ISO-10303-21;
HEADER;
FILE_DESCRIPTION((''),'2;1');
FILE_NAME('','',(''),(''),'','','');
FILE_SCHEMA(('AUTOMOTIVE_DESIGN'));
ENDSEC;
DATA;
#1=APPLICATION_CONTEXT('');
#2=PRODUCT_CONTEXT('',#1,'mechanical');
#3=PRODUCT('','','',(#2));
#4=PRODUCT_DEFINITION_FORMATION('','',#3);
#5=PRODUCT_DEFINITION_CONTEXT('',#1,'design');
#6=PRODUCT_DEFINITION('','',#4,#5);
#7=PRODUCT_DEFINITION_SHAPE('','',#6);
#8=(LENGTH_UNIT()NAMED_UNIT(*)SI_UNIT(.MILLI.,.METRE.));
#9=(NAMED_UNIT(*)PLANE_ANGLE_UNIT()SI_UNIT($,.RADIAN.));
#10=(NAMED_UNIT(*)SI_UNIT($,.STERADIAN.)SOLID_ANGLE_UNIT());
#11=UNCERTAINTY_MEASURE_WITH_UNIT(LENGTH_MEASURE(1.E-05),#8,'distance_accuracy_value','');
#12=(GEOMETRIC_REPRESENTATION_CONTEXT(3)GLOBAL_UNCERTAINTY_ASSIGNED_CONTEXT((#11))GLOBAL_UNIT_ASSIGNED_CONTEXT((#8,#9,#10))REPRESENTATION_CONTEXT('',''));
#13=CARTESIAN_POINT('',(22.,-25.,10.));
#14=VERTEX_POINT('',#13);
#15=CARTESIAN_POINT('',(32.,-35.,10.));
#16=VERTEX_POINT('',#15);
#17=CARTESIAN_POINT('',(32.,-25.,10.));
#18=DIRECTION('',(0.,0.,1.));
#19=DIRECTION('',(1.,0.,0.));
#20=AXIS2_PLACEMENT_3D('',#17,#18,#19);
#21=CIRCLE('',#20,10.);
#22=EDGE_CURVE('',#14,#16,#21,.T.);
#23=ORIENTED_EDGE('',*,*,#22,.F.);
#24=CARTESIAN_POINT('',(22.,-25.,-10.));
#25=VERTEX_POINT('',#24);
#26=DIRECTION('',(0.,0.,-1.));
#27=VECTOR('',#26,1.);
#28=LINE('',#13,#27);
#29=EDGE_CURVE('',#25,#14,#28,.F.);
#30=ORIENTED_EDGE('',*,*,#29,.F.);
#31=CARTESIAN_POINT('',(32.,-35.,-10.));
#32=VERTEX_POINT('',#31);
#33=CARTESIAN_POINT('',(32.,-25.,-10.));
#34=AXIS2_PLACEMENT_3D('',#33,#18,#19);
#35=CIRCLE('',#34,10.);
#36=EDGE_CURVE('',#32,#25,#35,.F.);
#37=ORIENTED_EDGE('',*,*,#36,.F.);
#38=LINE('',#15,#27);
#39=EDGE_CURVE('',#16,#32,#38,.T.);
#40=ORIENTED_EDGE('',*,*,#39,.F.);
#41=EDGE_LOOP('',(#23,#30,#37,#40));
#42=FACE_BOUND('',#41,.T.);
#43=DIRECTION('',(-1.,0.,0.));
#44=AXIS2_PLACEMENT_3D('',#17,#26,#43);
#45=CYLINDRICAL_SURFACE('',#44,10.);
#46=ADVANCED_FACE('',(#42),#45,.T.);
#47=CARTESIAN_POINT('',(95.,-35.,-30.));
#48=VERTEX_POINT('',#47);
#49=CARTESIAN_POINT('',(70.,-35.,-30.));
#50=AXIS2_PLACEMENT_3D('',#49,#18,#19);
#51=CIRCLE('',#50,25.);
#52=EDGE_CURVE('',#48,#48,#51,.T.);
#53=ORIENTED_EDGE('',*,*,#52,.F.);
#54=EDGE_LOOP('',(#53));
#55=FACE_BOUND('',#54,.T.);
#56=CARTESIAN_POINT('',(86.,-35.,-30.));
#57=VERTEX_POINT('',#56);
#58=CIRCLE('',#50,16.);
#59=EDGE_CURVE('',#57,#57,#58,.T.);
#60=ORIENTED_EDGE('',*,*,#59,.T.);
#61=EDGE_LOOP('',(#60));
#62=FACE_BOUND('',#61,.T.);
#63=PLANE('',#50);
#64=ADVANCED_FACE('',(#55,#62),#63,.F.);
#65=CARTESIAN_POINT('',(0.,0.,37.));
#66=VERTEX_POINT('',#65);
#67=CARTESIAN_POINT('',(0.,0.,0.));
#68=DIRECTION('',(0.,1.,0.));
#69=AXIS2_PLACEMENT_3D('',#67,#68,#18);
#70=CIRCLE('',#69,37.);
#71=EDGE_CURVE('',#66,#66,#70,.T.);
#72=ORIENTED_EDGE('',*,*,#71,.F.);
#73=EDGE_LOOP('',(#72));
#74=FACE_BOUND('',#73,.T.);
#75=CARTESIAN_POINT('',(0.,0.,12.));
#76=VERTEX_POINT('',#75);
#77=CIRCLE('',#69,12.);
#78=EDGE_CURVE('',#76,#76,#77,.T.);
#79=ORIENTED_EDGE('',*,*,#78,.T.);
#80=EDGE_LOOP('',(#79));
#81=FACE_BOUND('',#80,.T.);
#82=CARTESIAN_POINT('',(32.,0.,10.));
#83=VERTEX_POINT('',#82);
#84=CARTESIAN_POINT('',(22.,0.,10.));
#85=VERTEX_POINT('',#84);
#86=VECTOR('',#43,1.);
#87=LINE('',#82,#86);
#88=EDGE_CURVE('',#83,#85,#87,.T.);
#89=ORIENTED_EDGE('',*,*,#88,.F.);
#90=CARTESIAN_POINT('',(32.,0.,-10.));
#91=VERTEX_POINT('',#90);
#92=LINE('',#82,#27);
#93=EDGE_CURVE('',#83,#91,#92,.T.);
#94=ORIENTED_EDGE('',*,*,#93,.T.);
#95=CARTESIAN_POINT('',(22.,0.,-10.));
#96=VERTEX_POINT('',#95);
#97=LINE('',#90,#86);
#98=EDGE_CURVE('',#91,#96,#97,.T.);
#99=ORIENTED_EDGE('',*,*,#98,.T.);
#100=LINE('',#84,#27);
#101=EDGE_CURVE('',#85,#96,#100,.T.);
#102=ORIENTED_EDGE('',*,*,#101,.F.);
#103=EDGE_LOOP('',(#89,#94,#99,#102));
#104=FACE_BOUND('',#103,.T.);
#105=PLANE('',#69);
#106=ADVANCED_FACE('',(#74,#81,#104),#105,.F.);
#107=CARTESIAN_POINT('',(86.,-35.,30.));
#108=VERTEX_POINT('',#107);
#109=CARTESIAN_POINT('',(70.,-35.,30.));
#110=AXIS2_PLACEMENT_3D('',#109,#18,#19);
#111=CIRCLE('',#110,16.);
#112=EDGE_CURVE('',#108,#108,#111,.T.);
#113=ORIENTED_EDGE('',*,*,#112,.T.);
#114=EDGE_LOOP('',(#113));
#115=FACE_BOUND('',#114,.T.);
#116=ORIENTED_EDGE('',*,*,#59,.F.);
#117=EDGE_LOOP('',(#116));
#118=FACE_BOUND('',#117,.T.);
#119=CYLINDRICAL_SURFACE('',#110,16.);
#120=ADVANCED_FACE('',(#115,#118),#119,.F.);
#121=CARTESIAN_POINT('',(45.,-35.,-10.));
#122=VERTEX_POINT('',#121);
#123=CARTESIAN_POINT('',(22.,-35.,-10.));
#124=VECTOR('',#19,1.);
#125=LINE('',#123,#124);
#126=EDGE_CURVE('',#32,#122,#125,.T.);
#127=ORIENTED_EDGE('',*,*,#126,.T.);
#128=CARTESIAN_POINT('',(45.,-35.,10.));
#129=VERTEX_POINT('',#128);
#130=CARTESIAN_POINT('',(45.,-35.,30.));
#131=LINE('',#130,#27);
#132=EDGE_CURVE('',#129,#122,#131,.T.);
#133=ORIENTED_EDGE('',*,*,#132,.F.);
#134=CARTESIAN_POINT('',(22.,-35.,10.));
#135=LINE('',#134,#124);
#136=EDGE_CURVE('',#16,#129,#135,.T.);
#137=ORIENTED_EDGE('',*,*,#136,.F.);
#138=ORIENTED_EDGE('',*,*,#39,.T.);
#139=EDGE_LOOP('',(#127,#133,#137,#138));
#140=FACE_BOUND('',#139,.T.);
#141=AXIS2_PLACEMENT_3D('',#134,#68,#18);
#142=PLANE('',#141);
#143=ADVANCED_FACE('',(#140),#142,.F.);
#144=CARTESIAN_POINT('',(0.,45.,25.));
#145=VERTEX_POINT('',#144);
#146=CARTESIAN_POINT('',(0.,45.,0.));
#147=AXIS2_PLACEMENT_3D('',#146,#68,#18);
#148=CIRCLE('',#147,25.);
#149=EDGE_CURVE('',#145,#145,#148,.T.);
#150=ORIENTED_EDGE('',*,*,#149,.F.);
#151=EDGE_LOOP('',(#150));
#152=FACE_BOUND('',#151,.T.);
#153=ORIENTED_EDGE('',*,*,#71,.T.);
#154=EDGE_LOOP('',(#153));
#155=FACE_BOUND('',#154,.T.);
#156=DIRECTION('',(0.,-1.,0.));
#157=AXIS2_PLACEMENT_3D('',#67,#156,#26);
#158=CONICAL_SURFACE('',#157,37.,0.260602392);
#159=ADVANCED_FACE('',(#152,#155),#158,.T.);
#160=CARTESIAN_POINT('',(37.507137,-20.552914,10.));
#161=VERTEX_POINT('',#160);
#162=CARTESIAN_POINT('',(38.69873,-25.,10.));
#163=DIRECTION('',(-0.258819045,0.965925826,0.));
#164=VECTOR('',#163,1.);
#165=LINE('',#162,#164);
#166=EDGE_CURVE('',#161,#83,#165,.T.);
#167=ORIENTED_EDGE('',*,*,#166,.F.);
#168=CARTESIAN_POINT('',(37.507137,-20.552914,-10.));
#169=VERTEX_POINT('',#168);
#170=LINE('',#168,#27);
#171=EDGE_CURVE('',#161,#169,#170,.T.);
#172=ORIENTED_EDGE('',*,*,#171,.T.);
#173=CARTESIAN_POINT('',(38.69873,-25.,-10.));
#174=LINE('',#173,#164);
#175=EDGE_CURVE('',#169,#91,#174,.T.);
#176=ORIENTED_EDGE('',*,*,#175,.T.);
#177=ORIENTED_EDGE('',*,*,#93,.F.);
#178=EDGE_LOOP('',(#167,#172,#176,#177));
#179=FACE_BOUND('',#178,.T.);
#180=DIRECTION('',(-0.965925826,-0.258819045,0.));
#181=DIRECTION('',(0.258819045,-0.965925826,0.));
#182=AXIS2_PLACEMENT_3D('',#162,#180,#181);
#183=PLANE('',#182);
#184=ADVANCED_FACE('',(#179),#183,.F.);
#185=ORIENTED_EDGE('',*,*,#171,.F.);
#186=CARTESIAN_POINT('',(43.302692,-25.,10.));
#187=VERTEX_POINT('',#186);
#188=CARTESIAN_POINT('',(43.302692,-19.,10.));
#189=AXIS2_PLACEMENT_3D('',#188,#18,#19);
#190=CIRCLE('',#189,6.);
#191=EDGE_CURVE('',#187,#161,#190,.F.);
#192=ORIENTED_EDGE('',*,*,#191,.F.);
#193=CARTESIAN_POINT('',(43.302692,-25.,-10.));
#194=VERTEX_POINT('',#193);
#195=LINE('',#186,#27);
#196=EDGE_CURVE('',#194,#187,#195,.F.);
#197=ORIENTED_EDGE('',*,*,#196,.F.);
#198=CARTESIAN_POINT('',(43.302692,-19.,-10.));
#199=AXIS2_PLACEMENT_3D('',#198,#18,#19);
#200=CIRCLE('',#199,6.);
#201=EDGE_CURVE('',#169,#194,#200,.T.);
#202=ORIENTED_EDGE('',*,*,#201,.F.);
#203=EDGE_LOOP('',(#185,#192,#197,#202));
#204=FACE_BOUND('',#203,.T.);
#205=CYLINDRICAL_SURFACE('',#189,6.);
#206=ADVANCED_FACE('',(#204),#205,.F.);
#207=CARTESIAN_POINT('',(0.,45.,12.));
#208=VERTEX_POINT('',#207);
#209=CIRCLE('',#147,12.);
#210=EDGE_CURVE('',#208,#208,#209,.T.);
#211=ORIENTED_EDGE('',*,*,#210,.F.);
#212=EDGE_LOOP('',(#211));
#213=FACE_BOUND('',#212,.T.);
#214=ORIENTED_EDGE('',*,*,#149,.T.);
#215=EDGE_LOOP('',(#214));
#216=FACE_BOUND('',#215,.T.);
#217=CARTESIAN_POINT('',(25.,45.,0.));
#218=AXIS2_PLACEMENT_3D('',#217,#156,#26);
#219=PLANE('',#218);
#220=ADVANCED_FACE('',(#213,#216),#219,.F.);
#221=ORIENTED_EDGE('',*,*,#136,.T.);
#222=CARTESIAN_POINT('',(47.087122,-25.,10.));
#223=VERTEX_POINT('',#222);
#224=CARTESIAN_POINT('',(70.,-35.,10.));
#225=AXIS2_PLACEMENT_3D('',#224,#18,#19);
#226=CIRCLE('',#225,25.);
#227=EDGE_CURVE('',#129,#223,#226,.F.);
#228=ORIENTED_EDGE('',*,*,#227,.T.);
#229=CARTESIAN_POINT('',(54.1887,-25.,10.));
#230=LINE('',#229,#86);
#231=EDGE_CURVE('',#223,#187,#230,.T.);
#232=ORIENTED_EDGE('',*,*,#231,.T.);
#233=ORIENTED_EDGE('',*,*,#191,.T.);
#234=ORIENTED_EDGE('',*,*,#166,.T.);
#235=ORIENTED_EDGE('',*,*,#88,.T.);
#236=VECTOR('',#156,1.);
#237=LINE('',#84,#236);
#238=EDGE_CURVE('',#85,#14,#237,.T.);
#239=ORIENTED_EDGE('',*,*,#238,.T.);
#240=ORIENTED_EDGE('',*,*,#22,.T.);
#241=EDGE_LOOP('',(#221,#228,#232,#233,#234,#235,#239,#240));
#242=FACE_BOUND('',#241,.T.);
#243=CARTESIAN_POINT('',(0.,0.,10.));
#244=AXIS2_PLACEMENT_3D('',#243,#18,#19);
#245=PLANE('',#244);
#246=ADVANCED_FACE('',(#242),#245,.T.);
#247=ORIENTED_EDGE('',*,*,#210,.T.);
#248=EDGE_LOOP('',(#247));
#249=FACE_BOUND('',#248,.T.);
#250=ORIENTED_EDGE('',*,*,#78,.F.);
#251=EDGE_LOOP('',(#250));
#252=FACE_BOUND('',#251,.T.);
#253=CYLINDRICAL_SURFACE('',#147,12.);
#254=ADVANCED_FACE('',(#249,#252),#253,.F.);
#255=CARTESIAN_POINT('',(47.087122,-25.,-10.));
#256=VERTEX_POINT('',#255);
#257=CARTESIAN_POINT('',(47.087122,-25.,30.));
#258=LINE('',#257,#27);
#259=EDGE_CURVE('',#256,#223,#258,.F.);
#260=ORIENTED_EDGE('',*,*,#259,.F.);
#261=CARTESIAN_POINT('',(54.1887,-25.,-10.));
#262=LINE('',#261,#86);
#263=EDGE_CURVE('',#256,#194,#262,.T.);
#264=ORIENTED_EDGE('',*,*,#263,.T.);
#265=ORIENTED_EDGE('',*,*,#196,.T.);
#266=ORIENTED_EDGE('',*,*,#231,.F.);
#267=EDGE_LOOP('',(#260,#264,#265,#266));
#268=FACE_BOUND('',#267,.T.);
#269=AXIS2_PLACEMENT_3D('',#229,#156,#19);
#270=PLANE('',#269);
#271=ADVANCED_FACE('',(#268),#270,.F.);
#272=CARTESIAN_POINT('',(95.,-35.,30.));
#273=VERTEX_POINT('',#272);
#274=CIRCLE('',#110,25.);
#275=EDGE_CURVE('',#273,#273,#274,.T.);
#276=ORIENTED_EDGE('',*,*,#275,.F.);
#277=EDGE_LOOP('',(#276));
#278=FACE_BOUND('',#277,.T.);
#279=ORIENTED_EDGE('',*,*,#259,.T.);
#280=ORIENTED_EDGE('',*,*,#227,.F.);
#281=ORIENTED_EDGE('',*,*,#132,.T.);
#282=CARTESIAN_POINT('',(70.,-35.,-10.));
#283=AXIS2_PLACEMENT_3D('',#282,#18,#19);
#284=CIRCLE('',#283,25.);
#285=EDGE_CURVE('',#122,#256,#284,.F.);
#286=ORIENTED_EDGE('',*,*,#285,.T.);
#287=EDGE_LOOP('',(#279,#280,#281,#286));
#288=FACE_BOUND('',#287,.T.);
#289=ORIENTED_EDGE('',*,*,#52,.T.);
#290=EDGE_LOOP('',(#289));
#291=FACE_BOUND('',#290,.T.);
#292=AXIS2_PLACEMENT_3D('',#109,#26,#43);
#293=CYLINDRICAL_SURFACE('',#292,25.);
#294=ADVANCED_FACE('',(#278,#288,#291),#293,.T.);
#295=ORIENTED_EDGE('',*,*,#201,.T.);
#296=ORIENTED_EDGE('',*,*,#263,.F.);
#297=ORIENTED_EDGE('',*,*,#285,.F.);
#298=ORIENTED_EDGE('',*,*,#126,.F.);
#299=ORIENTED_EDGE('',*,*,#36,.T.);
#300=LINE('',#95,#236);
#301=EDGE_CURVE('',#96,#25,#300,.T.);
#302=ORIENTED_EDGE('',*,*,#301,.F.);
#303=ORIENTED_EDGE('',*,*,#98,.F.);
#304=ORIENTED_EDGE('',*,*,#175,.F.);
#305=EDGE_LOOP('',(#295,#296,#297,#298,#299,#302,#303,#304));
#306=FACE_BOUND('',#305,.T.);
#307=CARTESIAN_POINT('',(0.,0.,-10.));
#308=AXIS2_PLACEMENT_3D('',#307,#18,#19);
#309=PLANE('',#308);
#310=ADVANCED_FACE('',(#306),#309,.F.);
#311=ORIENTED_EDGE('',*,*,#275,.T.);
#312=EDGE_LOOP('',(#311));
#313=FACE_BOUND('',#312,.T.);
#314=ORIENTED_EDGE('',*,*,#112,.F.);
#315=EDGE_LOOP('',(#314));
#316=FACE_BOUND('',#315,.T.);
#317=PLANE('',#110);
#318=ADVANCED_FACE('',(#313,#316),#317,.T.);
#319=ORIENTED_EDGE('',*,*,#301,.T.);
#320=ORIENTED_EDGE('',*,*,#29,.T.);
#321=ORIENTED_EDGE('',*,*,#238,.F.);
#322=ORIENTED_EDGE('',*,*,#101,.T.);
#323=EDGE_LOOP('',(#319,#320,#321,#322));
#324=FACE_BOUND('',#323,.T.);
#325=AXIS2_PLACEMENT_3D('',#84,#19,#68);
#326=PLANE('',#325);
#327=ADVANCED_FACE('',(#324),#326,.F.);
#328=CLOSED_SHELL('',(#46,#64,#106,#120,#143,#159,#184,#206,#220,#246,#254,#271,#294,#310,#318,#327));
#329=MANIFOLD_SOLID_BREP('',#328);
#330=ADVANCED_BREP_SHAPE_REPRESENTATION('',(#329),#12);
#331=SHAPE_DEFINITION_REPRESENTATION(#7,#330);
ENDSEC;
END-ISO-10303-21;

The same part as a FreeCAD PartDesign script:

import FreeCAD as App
import Part
import Sketcher
from FreeCAD import Vector
Q = App.Units.Quantity


def edges_at(feature, points):
    """Names of the edges that pass closest to the given points."""
    edges = feature.Shape.Edges
    near = lambda p: min(range(len(edges)), key=lambda i: edges[i].distToShape(Part.Vertex(*p))[0])
    return sorted({f"Edge{near(p) + 1}" for p in points})

doc = App.newDocument("Part")
params = doc.addObject("Spreadsheet::Sheet", "Params")
for row, (alias, value) in enumerate([
    ("sketch1_width", "37 mm"),
    ("sketch1_width2", "25 mm"),
    ("sketch1_height", "45 mm"),
    ("revolution_angle", "360 deg"),
    ("sketch2_diameter", "50 mm"),
    ("pad1_length", "60 mm"),
    ("sketch3_width", "10 mm"),
    ("sketch3_height", "35 mm"),
    ("pad2_length", "20 mm"),
    ("fillet_radius", "10 mm"),
    ("fillet2_radius", "6 mm"),
    ("sketch4_diameter", "24 mm"),
    ("hole_diameter", "24 mm"),
    ("sketch5_diameter", "32 mm"),
    ("hole2_diameter", "32 mm"),
], start=1):
    params.set(f"A{row}", alias)
    params.set(f"B{row}", "=" + value)
    params.setAlias(f"B{row}", alias)

body = doc.addObject("PartDesign::Body", "Body")

# Sketch on XY plane
sketch1 = body.newObject("Sketcher::SketchObject", "Sketch")
sketch1.AttachmentSupport = (doc.getObject("XY_Plane"), [""])
sketch1.MapMode = "FlatFace"
sketch1.addGeometry([
    Part.LineSegment(Vector(0, 0, 0), Vector(37, 0, 0)),
    Part.LineSegment(Vector(37, 0, 0), Vector(25, 45, 0)),
    Part.LineSegment(Vector(25, 45, 0), Vector(0, 45, 0)),
    Part.LineSegment(Vector(0, 45, 0), Vector(0, 0, 0)),
], False)
sketch1.addConstraint([
    Sketcher.Constraint("Coincident", 0, 2, 1, 1),
    Sketcher.Constraint("Coincident", 1, 2, 2, 1),
    Sketcher.Constraint("Coincident", 2, 2, 3, 1),
    Sketcher.Constraint("Coincident", 3, 2, 0, 1),
    Sketcher.Constraint("Horizontal", 0),
    Sketcher.Constraint("Horizontal", 2),
    Sketcher.Constraint("Vertical", 3),
    Sketcher.Constraint("Coincident", 3, 2, -1, 1),
    Sketcher.Constraint("DistanceX", 0, 1, 0, 2, 37.0),
    Sketcher.Constraint("DistanceX", 2, 2, 2, 1, 25.0),
    Sketcher.Constraint("DistanceY", 3, 2, 3, 1, 45.0),
])
sketch1.setExpression("Constraints[8]", "Params.sketch1_width")
sketch1.setExpression("Constraints[9]", "Params.sketch1_width2")
sketch1.setExpression("Constraints[10]", "Params.sketch1_height")
revolution = body.newObject("PartDesign::Revolution", "Revolution")
revolution.Profile = sketch1
revolution.ReferenceAxis = (sketch1, ["V_Axis"])
revolution.setExpression("Angle", "Params.revolution_angle")
body2 = doc.addObject("PartDesign::Body", "Body001")

# Sketch on XY plane
sketch2 = body2.newObject("Sketcher::SketchObject", "Sketch001")
sketch2.AttachmentSupport = (doc.getObject("XY_Plane001"), [""])
sketch2.MapMode = "FlatFace"
sketch2.addGeometry(Part.Circle(Vector(70, -35, 0), Vector(0, 0, 1), 25), False)
sketch2.addConstraint([
    Sketcher.Constraint("Diameter", 0, 50.0),
    Sketcher.Constraint("DistanceX", -1, 1, 0, 3, 70.0),
    Sketcher.Constraint("DistanceY", 0, 3, -1, 1, 35.0),
])
sketch2.setExpression("Constraints[0]", "Params.sketch2_diameter")
pad1 = body2.newObject("PartDesign::Pad", "Pad")
pad1.Profile = sketch2
pad1.setExpression("Length", "Params.pad1_length")
pad1.Midplane = True
body.AllowCompound = True
doc.recompute()

boolean = body.newObject("PartDesign::Boolean", "Boolean")
boolean.Type = "Fuse"
boolean.addObjects([body2])

# Sketch on XY plane
sketch3 = body.newObject("Sketcher::SketchObject", "Sketch002")
sketch3.AttachmentSupport = (doc.getObject("XY_Plane"), [""])
sketch3.MapMode = "FlatFace"
sketch3.addGeometry([
    Part.LineSegment(Vector(22, 0, 0), Vector(22, -35, 0)),  # 0
    Part.LineSegment(Vector(22, -35, 0), Vector(54.1887, -35, 0)),  # 1
    Part.LineSegment(Vector(54.1887, -35, 0), Vector(54.1887, -25, 0)),  # 2
    Part.LineSegment(Vector(54.1887, -25, 0), Vector(38.69873, -25, 0)),  # 3
    Part.LineSegment(Vector(38.69873, -25, 0), Vector(32, 0, 0)),  # 4
    Part.LineSegment(Vector(32, 0, 0), Vector(22, 0, 0)),  # 5
], False)
sketch3.addConstraint([
    Sketcher.Constraint("Coincident", 0, 2, 1, 1),
    Sketcher.Constraint("Coincident", 1, 2, 2, 1),
    Sketcher.Constraint("Coincident", 2, 2, 3, 1),
    Sketcher.Constraint("Coincident", 3, 2, 4, 1),
    Sketcher.Constraint("Coincident", 4, 2, 5, 1),
    Sketcher.Constraint("Coincident", 5, 2, 0, 1),
    Sketcher.Constraint("Vertical", 0),
    Sketcher.Constraint("Horizontal", 1),
    Sketcher.Constraint("Vertical", 2),
    Sketcher.Constraint("Horizontal", 3),
    Sketcher.Constraint("Horizontal", 5),
    Sketcher.Constraint("PointOnObject", 4, 2, -1),
    Sketcher.Constraint("Equal", 5, 2),
    Sketcher.Constraint("DistanceX", 5, 2, 5, 1, 10.0),
    Sketcher.Constraint("DistanceY", 0, 2, 0, 1, 35.0),
    Sketcher.Constraint("Angle", 4, Q("105 deg")),
    Sketcher.Constraint("DistanceX", -1, 1, 0, 2, 22.0),
    Sketcher.Constraint("DistanceX", 1, 1, 1, 2, 32.1887),
])
sketch3.setExpression("Constraints[13]", "Params.sketch3_width")
sketch3.setExpression("Constraints[14]", "Params.sketch3_height")
pad2 = body.newObject("PartDesign::Pad", "Pad001")
pad2.Profile = sketch3
pad2.setExpression("Length", "Params.pad2_length")
pad2.Midplane = True
doc.recompute()

fillet = body.newObject("PartDesign::Fillet", "Fillet")
fillet.Base = (pad2, edges_at(pad2, [(22, -35, 0)]))
fillet.setExpression("Radius", "Params.fillet_radius")
doc.recompute()

fillet2 = body.newObject("PartDesign::Fillet", "Fillet001")
fillet2.Base = (fillet, edges_at(fillet, [(38.699, -25, 0)]))
fillet2.setExpression("Radius", "Params.fillet2_radius")

# Sketch on XZ plane
sketch4 = body.newObject("Sketcher::SketchObject", "Sketch003")
sketch4.AttachmentSupport = (doc.getObject("XZ_Plane"), [""])
sketch4.MapMode = "FlatFace"
sketch4.AttachmentOffset = App.Placement(Vector(0, 0, -45), App.Rotation())
sketch4.addGeometry(Part.Circle(Vector(0, 0, 0), Vector(0, 0, 1), 12), False)
sketch4.addConstraint([
    Sketcher.Constraint("Coincident", 0, 3, -1, 1),
    Sketcher.Constraint("Diameter", 0, 24.0),
])
sketch4.setExpression("Constraints[1]", "Params.sketch4_diameter")
doc.recompute()
hole = body.newObject("PartDesign::Hole", "Hole")
hole.Profile = sketch4
hole.ThreadType = "None"
hole.setExpression("Diameter", "Params.hole_diameter")
hole.DepthType = "ThroughAll"
hole.Reversed = True

# Sketch on XY plane
sketch5 = body.newObject("Sketcher::SketchObject", "Sketch004")
sketch5.AttachmentSupport = (doc.getObject("XY_Plane"), [""])
sketch5.MapMode = "FlatFace"
sketch5.AttachmentOffset = App.Placement(Vector(0, 0, 30), App.Rotation())
sketch5.addGeometry(Part.Circle(Vector(70, -35, 0), Vector(0, 0, 1), 16), False)
sketch5.addConstraint([
    Sketcher.Constraint("Diameter", 0, 32.0),
    Sketcher.Constraint("DistanceX", -1, 1, 0, 3, 70.0),
    Sketcher.Constraint("DistanceY", 0, 3, -1, 1, 35.0),
])
sketch5.setExpression("Constraints[0]", "Params.sketch5_diameter")
doc.recompute()
hole2 = body.newObject("PartDesign::Hole", "Hole001")
hole2.Profile = sketch5
hole2.ThreadType = "None"
hole2.setExpression("Diameter", "Params.hole2_diameter")
hole2.DepthType = "ThroughAll"

doc.recompute()
